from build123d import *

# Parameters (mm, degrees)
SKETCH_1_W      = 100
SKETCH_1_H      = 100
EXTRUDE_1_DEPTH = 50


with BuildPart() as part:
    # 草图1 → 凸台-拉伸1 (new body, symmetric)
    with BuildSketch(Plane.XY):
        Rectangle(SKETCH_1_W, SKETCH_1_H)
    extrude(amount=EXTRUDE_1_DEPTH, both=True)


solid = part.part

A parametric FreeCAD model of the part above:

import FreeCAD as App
import Part
import Sketcher

V = App.Vector

doc = App.newDocument("Part")
body = doc.addObject("PartDesign::Body", "Body")

sketch1 = body.newObject("Sketcher::SketchObject", "Sketch")
sketch1.AttachmentSupport = (doc.getObject("XY_Plane"), [""])
sketch1.MapMode = "FlatFace"
sketch1.addGeometry([
    Part.LineSegment(V(-50, 50, 0), V(-50, -50, 0)),
    Part.LineSegment(V(-50, -50, 0), V(50, -50, 0)),
    Part.LineSegment(V(50, -50, 0), V(50, 50, 0)),
    Part.LineSegment(V(50, 50, 0), V(-50, 50, 0)),
], False)
sketch1.addConstraint([
    Sketcher.Constraint("Coincident", 0, 2, 1, 1),
    Sketcher.Constraint("Coincident", 1, 2, 2, 1),
    Sketcher.Constraint("Coincident", 2, 2, 3, 1),
    Sketcher.Constraint("Coincident", 3, 2, 0, 1),
    Sketcher.Constraint("Vertical", 0),
    Sketcher.Constraint("Horizontal", 1),
    Sketcher.Constraint("Vertical", 2),
    Sketcher.Constraint("Horizontal", 3),
    Sketcher.Constraint("Symmetric", 0, 2, 2, 2, -1, 1),
    Sketcher.Constraint("Equal", 3, 0),
    Sketcher.Constraint("DistanceX", 1, 1, 1, 2, 100.0),
])
pad1 = body.newObject("PartDesign::Pad", "Pad")
pad1.Profile = sketch1
pad1.Length = 100
pad1.Midplane = True

doc.recompute()
